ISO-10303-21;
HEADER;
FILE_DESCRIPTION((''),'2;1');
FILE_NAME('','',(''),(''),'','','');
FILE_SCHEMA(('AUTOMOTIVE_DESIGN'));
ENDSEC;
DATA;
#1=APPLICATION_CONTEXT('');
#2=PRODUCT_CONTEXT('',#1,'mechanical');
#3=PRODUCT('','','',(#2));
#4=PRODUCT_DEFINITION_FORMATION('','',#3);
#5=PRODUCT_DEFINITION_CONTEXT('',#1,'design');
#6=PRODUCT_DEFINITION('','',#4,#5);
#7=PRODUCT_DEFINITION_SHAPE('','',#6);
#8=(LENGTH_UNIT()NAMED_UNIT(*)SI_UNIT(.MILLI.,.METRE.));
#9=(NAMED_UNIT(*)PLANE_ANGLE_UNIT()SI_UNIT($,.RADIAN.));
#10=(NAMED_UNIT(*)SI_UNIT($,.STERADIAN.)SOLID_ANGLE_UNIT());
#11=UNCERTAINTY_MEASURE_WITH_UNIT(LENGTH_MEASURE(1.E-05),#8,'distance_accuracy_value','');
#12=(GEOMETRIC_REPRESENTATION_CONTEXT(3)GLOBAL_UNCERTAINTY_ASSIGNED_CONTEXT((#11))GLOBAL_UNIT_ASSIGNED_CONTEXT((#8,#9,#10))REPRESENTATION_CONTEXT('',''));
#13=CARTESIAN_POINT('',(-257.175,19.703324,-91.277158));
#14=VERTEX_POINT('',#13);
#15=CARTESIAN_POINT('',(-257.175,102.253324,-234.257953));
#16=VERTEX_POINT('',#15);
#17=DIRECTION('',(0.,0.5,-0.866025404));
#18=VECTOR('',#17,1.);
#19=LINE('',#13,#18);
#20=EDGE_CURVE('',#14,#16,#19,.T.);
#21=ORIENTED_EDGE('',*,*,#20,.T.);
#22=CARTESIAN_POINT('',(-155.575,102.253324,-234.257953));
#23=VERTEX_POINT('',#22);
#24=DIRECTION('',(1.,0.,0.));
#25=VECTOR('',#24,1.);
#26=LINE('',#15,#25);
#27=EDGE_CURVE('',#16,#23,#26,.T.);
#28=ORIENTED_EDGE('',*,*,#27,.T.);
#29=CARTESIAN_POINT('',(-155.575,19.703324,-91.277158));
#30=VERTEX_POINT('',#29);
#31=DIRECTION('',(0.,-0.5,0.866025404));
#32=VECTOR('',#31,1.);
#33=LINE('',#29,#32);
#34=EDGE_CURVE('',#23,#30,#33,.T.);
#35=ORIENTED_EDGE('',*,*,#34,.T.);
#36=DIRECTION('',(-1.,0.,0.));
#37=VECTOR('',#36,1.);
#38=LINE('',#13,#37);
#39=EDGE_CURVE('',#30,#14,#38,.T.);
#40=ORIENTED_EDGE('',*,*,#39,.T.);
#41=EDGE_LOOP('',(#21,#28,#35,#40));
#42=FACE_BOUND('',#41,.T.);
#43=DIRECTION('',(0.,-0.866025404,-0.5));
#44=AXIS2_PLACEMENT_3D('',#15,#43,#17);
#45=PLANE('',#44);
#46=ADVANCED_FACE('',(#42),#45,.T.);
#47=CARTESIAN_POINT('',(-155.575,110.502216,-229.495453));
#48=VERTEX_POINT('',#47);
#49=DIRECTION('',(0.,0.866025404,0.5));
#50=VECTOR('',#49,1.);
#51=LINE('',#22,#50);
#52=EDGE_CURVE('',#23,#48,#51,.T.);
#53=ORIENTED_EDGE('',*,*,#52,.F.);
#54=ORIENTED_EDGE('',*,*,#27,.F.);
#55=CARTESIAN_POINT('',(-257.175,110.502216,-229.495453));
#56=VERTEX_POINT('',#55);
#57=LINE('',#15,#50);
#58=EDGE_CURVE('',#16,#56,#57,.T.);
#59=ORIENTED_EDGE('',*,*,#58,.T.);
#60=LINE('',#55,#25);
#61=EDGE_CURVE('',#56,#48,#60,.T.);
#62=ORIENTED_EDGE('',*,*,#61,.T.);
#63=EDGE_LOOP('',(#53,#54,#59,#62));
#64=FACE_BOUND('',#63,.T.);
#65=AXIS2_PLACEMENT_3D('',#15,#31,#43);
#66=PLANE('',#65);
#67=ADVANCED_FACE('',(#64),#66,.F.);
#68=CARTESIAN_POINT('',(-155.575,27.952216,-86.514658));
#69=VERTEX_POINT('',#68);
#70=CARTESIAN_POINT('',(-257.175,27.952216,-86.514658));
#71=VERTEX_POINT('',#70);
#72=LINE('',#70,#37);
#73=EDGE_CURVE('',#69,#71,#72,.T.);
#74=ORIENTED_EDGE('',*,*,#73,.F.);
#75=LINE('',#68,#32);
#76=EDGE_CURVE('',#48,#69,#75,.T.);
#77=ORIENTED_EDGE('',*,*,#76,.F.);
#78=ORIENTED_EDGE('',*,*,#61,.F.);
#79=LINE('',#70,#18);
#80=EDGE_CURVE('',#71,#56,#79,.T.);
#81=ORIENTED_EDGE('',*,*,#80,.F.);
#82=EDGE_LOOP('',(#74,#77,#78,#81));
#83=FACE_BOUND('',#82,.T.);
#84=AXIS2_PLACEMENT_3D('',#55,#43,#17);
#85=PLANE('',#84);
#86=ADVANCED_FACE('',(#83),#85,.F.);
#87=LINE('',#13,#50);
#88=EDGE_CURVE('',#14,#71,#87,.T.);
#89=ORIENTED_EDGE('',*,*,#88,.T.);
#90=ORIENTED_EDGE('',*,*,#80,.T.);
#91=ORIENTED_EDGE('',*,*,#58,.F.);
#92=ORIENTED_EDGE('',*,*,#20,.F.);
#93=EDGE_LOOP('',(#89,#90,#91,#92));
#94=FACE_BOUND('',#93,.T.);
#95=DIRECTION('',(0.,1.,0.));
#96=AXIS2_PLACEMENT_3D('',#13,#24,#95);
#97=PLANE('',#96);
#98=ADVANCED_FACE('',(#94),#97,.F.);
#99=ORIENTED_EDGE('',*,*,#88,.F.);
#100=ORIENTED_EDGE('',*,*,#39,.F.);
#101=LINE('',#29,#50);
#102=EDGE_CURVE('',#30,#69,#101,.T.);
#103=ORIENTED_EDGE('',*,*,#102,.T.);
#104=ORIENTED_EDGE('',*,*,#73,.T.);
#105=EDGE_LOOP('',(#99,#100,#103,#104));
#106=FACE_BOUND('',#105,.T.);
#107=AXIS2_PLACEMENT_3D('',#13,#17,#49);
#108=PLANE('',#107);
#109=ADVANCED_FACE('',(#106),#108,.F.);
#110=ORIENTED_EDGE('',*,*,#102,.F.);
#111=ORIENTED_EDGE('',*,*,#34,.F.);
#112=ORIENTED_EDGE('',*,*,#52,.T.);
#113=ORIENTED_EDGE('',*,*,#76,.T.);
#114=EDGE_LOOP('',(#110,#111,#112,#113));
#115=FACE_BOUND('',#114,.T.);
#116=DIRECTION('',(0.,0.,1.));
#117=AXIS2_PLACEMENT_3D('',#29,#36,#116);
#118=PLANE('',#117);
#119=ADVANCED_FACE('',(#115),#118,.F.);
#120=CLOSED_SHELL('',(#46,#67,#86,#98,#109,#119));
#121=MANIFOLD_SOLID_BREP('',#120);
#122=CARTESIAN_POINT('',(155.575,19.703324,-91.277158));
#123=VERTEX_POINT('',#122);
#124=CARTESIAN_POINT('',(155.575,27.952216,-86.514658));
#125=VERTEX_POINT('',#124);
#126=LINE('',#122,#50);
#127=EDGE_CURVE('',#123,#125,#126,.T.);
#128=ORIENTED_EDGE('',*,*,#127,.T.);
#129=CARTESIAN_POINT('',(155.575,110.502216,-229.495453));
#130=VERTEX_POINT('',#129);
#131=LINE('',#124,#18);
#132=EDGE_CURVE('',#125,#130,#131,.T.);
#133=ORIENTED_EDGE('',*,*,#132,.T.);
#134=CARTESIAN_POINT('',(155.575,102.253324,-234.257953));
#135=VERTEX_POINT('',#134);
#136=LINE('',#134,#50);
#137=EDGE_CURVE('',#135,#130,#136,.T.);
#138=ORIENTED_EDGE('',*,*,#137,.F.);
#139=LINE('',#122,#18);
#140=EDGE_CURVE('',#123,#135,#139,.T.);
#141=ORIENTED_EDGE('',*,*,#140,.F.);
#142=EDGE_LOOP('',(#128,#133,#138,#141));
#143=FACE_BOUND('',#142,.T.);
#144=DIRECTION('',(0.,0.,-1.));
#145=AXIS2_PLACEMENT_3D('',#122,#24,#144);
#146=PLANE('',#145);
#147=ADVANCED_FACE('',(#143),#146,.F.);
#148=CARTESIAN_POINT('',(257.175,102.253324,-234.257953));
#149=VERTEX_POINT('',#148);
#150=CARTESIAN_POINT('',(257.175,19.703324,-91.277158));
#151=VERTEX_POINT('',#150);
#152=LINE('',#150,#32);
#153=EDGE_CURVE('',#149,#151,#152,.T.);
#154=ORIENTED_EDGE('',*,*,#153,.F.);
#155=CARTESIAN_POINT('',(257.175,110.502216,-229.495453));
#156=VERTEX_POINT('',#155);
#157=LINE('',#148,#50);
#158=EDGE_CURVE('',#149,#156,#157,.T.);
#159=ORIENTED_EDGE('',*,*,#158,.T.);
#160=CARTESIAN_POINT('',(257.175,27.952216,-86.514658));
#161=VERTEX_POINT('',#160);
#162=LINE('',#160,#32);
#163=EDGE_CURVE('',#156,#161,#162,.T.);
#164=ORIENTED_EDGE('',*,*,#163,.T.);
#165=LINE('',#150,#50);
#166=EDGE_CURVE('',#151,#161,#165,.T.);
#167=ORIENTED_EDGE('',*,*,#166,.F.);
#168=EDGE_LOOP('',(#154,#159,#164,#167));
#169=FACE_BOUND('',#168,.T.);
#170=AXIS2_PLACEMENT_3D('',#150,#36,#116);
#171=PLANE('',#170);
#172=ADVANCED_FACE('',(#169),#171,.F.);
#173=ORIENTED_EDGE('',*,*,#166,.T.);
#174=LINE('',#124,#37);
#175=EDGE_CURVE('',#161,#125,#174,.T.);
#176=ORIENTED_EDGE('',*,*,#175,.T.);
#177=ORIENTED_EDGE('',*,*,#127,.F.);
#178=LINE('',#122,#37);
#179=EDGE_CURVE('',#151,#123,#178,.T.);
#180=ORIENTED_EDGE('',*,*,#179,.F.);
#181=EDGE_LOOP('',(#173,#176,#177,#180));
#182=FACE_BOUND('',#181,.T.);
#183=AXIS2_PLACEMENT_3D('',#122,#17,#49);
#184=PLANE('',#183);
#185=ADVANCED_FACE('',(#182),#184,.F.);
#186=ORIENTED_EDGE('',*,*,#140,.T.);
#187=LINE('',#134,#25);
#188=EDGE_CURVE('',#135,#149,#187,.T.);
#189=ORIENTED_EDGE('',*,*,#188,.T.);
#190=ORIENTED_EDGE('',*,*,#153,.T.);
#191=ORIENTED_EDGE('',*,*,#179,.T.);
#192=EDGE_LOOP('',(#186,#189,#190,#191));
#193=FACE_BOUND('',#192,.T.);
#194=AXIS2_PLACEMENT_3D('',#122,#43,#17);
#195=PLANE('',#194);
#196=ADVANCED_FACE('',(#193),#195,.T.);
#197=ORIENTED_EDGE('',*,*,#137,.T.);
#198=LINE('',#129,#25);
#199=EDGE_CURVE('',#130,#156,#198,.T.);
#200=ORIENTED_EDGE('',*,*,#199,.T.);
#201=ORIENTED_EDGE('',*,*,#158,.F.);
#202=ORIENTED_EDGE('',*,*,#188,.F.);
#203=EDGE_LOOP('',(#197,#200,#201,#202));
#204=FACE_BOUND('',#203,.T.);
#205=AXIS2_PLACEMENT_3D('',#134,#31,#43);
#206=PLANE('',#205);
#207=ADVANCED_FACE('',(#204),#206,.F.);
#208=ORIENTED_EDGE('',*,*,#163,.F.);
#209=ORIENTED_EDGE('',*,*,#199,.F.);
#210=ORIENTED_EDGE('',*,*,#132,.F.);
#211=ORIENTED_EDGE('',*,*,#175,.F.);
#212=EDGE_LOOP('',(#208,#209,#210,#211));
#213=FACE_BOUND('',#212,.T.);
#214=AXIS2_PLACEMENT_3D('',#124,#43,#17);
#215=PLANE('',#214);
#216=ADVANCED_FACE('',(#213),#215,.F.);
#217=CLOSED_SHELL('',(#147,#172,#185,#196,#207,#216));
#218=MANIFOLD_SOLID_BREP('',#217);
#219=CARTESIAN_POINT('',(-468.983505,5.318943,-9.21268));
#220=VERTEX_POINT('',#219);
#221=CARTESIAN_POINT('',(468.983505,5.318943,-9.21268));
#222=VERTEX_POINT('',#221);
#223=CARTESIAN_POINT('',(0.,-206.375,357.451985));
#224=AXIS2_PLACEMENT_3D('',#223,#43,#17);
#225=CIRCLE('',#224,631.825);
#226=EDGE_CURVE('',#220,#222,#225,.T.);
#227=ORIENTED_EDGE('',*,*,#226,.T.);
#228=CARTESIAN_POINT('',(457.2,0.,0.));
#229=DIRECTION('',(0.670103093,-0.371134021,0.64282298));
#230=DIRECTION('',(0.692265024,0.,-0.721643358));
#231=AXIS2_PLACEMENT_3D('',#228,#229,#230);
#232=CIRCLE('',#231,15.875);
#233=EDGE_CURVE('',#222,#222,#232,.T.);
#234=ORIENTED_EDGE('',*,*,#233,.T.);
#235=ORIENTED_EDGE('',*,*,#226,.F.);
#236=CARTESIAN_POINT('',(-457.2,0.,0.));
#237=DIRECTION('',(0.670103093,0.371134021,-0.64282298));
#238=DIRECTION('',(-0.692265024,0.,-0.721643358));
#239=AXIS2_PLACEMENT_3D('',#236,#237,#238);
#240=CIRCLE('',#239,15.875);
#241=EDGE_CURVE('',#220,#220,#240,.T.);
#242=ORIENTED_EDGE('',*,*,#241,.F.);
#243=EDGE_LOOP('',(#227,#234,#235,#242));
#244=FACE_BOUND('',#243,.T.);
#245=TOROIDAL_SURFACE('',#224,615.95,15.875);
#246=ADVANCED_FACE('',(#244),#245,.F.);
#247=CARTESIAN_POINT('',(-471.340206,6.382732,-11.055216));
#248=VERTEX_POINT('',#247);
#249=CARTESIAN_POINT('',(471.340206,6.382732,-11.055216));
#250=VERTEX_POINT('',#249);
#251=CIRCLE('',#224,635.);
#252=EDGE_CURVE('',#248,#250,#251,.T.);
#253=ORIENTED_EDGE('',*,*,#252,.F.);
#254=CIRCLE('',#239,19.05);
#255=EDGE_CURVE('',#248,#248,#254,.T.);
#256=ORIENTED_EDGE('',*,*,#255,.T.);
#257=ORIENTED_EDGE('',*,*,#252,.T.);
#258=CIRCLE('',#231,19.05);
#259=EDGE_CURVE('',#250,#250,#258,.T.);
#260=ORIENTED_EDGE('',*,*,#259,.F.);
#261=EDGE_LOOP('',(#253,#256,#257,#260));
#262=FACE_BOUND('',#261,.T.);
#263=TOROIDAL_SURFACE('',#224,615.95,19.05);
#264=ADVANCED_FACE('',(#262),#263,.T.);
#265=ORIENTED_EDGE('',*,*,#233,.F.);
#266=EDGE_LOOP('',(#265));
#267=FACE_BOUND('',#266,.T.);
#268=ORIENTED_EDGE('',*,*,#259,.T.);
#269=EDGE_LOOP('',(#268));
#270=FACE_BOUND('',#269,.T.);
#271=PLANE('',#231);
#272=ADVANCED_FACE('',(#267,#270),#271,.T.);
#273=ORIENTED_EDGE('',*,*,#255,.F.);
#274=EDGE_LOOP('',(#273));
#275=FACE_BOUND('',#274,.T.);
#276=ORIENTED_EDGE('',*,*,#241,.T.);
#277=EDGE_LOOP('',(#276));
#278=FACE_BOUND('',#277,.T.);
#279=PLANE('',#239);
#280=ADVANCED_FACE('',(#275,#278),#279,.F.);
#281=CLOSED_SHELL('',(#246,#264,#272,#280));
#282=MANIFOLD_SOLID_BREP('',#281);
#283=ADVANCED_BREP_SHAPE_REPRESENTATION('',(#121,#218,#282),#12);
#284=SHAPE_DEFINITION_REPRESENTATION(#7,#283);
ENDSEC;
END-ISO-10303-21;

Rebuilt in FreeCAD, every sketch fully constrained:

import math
import FreeCAD as App
import Part
import Sketcher

V = App.Vector
Q = App.Units.Quantity


def add_polygon(sketch, points):
    """Adds a closed chain of lines whose ends are joined by coincident constraints."""
    first, n = sketch.GeometryCount, len(points)
    for a, b in zip(points, points[1:] + points[:1]):
        sketch.addGeometry(Part.LineSegment(App.Vector(*a, 0), App.Vector(*b, 0)), False)
    for i in range(n):
        sketch.addConstraint(Sketcher.Constraint("Coincident", first + i, 2, first + (i + 1) % n, 1))

doc = App.newDocument("Part")
body = doc.addObject("PartDesign::Body", "Body")

# Sketch on an angled plane
sketch1 = body.newObject("Sketcher::SketchObject", "Sketch")
sketch1.Placement = App.Placement(V(457.2, 0, 0), App.Rotation(V(0.562335987, -0.311447623, -0.766014762), V(0.484499828, 0.874791356, 0.000000001), V(0.670103093, -0.371134021, 0.64282298), "ZXY"))
sketch1.addGeometry([
    Part.Circle(V(0, 0, 0), V(0, 0, 1), 19),
    Part.Circle(V(0, 0, 0), V(0, 0, 1), 16),
], False)
sketch1.addConstraint([
    Sketcher.Constraint("Coincident", 0, 3, -1, 1),
    Sketcher.Constraint("Coincident", 1, 3, -1, 1),
    Sketcher.Constraint("Diameter", 0, Q("1.5 in")),
    Sketcher.Constraint("Diameter", 1, Q("1.25 in")),
])

# Sketch on an angled plane
sketch2 = body.newObject("Sketcher::SketchObject", "Sketch001")
sketch2.Placement = App.Placement(V(0, 0, 0), App.Rotation(V(0, -0.5, 0.866025404), V(1, 0, 0), V(0, 0.866025404, 0.5), "ZXY"))
sketch2.addGeometry(Part.ArcOfCircle(Part.Circle(V(413, 0, 0), V(0, 0, 1), 616), math.radians(132), math.radians(228)), False)
sketch2.addConstraint([
    Sketcher.Constraint("Symmetric", 0, 1, 0, 2, -1, 1),
    Sketcher.Constraint("PointOnObject", 0, 3, -1),
    Sketcher.Constraint("Radius", 0, Q("24.25 in")),
    Sketcher.Constraint("DistanceY", -1, 1, 0, 1, Q("18 in")),
])
doc.recompute()

additivepipe = body.newObject("PartDesign::AdditivePipe", "AdditivePipe")
additivepipe.Profile = sketch1
additivepipe.Spine = (sketch2, ["Edge1"])
body2 = doc.addObject("PartDesign::Body", "Body001")

# Sketch on an angled plane
sketch3 = body2.newObject("Sketcher::SketchObject", "Sketch002")
sketch3.Placement = App.Placement(V(0, -16.497784, -9.525), App.Rotation(V(1, 0, 0), V(0, -0.5, 0.866025404), V(0, -0.866025404, -0.5), "ZXY"))
add_polygon(sketch3, [(-257, -89), (-257, -254), (-156, -254), (-156, -89)])  # lines 0-3
sketch3.addConstraint([
    Sketcher.Constraint("Vertical", 0),
    Sketcher.Constraint("Horizontal", 1),
    Sketcher.Constraint("Vertical", 2),
    Sketcher.Constraint("Horizontal", 3),
    Sketcher.Constraint("DistanceX", 1, 1, 1, 2, Q("4 in")),
    Sketcher.Constraint("DistanceY", 0, 2, 0, 1, Q("6.5 in")),
    Sketcher.Constraint("DistanceY", 0, 2, -1, 1, Q("10 in")),
    Sketcher.Constraint("DistanceX", 0, 2, -1, 1, Q("10.125 in")),
])
pad1 = body2.newObject("PartDesign::Pad", "Pad")
pad1.Profile = sketch3
pad1.Length = Q("0.375 in")
body3 = doc.addObject("PartDesign::Body", "Body002")

# Sketch on an angled plane
sketch4 = body3.newObject("Sketcher::SketchObject", "Sketch003")
sketch4.Placement = App.Placement(V(0, -16.497784, -9.525), App.Rotation(V(1, 0, 0), V(0, -0.5, 0.866025404), V(0, -0.866025404, -0.5), "ZXY"))
add_polygon(sketch4, [(156, -89), (156, -254), (257, -254), (257, -89)])  # lines 0-3
sketch4.addConstraint([
    Sketcher.Constraint("Vertical", 0),
    Sketcher.Constraint("Horizontal", 1),
    Sketcher.Constraint("Vertical", 2),
    Sketcher.Constraint("Horizontal", 3),
    Sketcher.Constraint("DistanceX", 1, 1, 1, 2, Q("4 in")),
    Sketcher.Constraint("DistanceY", 0, 2, 0, 1, Q("6.5 in")),
    Sketcher.Constraint("DistanceY", 0, 2, -1, 1, Q("10 in")),
    Sketcher.Constraint("DistanceX", -1, 1, 0, 2, Q("6.125 in")),
])
pad2 = body3.newObject("PartDesign::Pad", "Pad001")
pad2.Profile = sketch4
pad2.Length = Q("0.375 in")

doc.recompute()
